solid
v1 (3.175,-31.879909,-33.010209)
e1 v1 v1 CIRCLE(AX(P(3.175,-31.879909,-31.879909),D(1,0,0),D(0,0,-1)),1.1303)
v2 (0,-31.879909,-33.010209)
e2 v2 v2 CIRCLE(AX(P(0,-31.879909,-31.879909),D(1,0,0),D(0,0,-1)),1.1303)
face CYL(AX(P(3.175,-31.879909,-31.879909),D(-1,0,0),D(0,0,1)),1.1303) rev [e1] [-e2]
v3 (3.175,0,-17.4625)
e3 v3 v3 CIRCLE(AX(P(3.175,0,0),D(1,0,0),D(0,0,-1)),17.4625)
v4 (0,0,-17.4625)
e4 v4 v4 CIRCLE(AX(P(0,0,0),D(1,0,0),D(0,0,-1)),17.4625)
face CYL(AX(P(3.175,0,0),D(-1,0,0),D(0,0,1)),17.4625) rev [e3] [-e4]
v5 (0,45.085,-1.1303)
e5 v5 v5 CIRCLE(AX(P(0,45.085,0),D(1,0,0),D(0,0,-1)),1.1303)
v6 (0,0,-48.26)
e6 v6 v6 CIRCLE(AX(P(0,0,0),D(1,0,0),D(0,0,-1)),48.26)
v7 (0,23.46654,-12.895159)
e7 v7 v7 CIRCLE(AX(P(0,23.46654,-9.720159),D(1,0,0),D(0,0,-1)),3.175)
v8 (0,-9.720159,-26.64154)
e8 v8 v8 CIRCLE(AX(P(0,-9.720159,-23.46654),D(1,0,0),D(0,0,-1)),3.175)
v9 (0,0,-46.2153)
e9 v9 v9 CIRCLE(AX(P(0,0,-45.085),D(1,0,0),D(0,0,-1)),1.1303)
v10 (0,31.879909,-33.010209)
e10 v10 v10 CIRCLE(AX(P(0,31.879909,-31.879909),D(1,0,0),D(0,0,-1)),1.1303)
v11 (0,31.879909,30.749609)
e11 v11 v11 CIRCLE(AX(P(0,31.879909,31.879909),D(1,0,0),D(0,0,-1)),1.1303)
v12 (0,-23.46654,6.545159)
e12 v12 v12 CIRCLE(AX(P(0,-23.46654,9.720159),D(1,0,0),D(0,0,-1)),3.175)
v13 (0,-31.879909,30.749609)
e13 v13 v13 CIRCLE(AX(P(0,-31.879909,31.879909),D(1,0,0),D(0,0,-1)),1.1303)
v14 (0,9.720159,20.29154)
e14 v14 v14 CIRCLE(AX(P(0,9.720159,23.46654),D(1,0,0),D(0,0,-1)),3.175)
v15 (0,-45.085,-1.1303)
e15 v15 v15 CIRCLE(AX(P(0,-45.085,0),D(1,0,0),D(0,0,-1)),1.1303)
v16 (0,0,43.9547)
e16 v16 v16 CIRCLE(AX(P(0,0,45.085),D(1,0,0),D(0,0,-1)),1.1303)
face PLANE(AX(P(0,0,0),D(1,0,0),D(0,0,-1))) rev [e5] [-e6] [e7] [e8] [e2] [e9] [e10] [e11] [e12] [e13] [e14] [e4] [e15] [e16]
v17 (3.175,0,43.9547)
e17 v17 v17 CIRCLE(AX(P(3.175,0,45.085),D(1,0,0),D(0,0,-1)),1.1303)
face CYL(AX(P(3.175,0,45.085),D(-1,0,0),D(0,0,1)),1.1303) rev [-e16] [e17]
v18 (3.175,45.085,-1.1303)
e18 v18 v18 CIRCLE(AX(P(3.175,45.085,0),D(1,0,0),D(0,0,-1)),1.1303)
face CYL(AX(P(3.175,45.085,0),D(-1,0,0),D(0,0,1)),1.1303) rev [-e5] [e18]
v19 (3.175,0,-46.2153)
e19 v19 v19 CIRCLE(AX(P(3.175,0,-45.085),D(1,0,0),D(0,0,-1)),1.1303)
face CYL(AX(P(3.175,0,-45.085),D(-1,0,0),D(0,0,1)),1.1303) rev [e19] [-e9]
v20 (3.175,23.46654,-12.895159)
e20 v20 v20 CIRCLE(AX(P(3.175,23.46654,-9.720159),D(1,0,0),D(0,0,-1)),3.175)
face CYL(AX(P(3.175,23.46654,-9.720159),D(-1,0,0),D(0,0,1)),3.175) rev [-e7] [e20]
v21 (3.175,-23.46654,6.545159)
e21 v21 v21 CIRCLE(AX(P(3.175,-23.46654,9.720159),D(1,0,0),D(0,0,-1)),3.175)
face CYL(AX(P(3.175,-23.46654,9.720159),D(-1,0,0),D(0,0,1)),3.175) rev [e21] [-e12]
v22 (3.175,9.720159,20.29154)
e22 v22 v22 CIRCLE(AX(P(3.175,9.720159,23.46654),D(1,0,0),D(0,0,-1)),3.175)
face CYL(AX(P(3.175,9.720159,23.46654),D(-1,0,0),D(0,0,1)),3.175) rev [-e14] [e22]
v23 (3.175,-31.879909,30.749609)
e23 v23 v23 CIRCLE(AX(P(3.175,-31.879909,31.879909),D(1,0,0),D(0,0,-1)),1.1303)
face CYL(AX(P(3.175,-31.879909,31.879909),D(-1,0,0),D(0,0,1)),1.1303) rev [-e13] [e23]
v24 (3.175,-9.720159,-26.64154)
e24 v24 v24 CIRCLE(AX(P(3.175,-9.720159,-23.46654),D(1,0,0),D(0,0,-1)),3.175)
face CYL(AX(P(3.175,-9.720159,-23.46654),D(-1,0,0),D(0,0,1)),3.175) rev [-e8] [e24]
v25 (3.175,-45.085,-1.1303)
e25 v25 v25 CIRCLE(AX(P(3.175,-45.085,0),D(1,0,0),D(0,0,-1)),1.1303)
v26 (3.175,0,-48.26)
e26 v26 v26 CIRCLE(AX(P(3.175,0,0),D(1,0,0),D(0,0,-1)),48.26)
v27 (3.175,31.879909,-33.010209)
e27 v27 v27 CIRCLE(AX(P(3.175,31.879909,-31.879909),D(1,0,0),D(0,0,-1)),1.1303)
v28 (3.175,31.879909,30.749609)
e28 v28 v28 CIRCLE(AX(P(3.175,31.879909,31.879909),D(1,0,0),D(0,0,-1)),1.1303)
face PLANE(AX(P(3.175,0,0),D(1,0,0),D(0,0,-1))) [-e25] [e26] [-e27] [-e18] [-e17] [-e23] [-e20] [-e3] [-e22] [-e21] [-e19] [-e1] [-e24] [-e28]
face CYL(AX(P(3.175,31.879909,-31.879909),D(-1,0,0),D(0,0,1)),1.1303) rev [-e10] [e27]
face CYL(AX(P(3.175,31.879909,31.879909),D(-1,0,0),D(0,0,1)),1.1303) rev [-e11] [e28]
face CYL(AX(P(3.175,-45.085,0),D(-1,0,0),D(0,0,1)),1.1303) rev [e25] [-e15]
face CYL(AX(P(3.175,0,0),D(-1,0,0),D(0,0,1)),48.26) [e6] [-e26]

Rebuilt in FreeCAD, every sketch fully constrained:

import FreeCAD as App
import Part
import Sketcher
from FreeCAD import Vector
Q = App.Units.Quantity

doc = App.newDocument("Part")
body = doc.addObject("PartDesign::Body", "Body")

sketch1 = body.newObject("Sketcher::SketchObject", "Sketch")
sketch1.AttachmentSupport = (doc.getObject("YZ_Plane"), [""])
sketch1.MapMode = "FlatFace"
sketch1.addGeometry(Part.Circle(Vector(0, 0, 0), Vector(0, 0, 1), 48.3), False)
sketch1.addGeometry(Part.Circle(Vector(-31.9, 31.9, 0), Vector(0, 0, 1), 1.1), False)
sketch1.addGeometry(Part.Circle(Vector(-45.1, 0, 0), Vector(0, 0, 1), 1.1), False)
sketch1.addGeometry(Part.Circle(Vector(-23.5, 9.7, 0), Vector(0, 0, 1), 3.2), False)
sketch1.addGeometry(Part.Circle(Vector(0, 45.1, 0), Vector(0, 0, 1), 1.1), False)
sketch1.addGeometry(Part.Circle(Vector(0, 0, 0), Vector(0, 0, 1), 17.5), False)
sketch1.addGeometry(Part.Circle(Vector(-31.9, -31.9, 0), Vector(0, 0, 1), 1.1), False)
sketch1.addGeometry(Part.Circle(Vector(-9.7, -23.5, 0), Vector(0, 0, 1), 3.2), False)
sketch1.addGeometry(Part.Circle(Vector(0, -45.1, 0), Vector(0, 0, 1), 1.1), False)
sketch1.addGeometry(Part.Circle(Vector(9.7, 23.5, 0), Vector(0, 0, 1), 3.2), False)
sketch1.addGeometry(Part.Circle(Vector(31.9, 31.9, 0), Vector(0, 0, 1), 1.1), False)
sketch1.addGeometry(Part.Circle(Vector(45.1, 0, 0), Vector(0, 0, 1), 1.1), False)
sketch1.addGeometry(Part.Circle(Vector(23.5, -9.7, 0), Vector(0, 0, 1), 3.2), False)
sketch1.addGeometry(Part.Circle(Vector(31.9, -31.9, 0), Vector(0, 0, 1), 1.1), False)
sketch1.addConstraint(Sketcher.Constraint("Coincident", 0, 3, -1, 1))
sketch1.addConstraint(Sketcher.Constraint("Coincident", 5, 3, -1, 1))
sketch1.addConstraint(Sketcher.Constraint("Equal", 1, 2))
sketch1.addConstraint(Sketcher.Constraint("Equal", 2, 4))
sketch1.addConstraint(Sketcher.Constraint("Equal", 4, 6))
sketch1.addConstraint(Sketcher.Constraint("Equal", 3, 7))
sketch1.addConstraint(Sketcher.Constraint("Equal", 6, 8))
sketch1.addConstraint(Sketcher.Constraint("Equal", 7, 9))
sketch1.addConstraint(Sketcher.Constraint("Equal", 8, 10))
sketch1.addConstraint(Sketcher.Constraint("Equal", 10, 11))
sketch1.addConstraint(Sketcher.Constraint("Equal", 9, 12))
sketch1.addConstraint(Sketcher.Constraint("Equal", 11, 13))
sketch1.addConstraint(Sketcher.Constraint("Symmetric", 4, 3, 8, 3, -1, 1))
sketch1.addConstraint(Sketcher.Constraint("Symmetric", 7, 3, 9, 3, -1, 1))
sketch1.addConstraint(Sketcher.Constraint("Symmetric", 6, 3, 10, 3, -1, 1))
sketch1.addConstraint(Sketcher.Constraint("Symmetric", 2, 3, 11, 3, -1, 1))
sketch1.addConstraint(Sketcher.Constraint("Symmetric", 3, 3, 12, 3, -1, 1))
sketch1.addConstraint(Sketcher.Constraint("Symmetric", 1, 3, 13, 3, -1, 1))
sketch1.addConstraint(Sketcher.Constraint("Symmetric", 1, 3, 10, 3, -2))
sketch1.addConstraint(Sketcher.Constraint("PointOnObject", 2, 3, -1))
sketch1.addConstraint(Sketcher.Constraint("PointOnObject", 4, 3, -2))
sketch1.addConstraint(Sketcher.Constraint("Diameter", 0, Q("3.8 in")))
sketch1.addConstraint(Sketcher.Constraint("Diameter", 3, Q("0.25 in")))
sketch1.addConstraint(Sketcher.Constraint("Diameter", 1, Q("0.089 in")))
sketch1.addConstraint(Sketcher.Constraint("Diameter", 5, Q("1.375 in")))
sketch1.addConstraint(Sketcher.Constraint("DistanceX", 2, 3, -1, 1, Q("1.775 in")))
sketch1.addConstraint(Sketcher.Constraint("DistanceY", -1, 1, 4, 3, Q("1.775 in")))
sketch1.addConstraint(Sketcher.Constraint("DistanceY", 7, 3, 3, 3, Q("33.186699 mm")))
sketch1.addConstraint(Sketcher.Constraint("DistanceX", 3, 3, 9, 3, Q("33.186699 mm")))
sketch1.addConstraint(Sketcher.Constraint("DistanceX", 1, 3, -1, 1, Q("31.879909 mm")))
sketch1.addConstraint(Sketcher.Constraint("DistanceY", -1, 1, 1, 3, Q("31.879909 mm")))
sketch1.addConstraint(Sketcher.Constraint("DistanceX", 3, 3, -1, 1, Q("23.46654 mm")))
sketch1.addConstraint(Sketcher.Constraint("DistanceY", -1, 1, 3, 3, Q("9.720159 mm")))
pad1 = body.newObject("PartDesign::Pad", "Pad")
pad1.Profile = sketch1
pad1.Length = Q("0.125 in")

doc.recompute()
